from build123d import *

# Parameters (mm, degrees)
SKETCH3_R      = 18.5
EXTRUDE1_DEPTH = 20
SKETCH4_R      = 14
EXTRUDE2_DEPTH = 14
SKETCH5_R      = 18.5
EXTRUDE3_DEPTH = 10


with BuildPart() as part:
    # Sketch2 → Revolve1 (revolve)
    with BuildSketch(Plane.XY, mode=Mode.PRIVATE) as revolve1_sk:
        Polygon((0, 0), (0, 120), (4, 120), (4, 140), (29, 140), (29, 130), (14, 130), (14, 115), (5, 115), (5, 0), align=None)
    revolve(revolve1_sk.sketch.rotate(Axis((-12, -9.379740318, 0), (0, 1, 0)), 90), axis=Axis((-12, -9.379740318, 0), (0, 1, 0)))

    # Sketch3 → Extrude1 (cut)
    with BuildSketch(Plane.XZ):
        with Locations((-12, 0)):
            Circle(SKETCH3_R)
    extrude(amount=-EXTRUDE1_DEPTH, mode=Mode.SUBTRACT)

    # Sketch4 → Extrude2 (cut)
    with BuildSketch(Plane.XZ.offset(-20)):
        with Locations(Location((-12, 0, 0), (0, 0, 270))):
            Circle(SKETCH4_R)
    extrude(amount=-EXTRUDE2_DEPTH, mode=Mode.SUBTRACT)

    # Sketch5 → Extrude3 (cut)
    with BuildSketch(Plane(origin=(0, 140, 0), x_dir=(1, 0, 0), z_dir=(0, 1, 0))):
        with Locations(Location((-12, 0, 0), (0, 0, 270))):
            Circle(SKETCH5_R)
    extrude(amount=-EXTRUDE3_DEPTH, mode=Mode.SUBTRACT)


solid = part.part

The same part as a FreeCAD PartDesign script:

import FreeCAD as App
import Part
import Sketcher
from FreeCAD import Vector

doc = App.newDocument("Part")
params = doc.addObject("Spreadsheet::Sheet", "Params")
for row, (alias, value) in enumerate([
    ("sketch1_width", "5 mm"),
    ("sketch1_width2", "9 mm"),
    ("sketch1_width3", "15 mm"),
    ("sketch1_width4", "25 mm"),
    ("sketch1_height", "120 mm"),
    ("revolution_angle", "360 deg"),
    ("sketch2_diameter", "37 mm"),
    ("pocket1_length", "20 mm"),
    ("sketch3_diameter", "28 mm"),
    ("pocket2_length", "14 mm"),
    ("sketch4_diameter", "37 mm"),
    ("pocket3_length", "10 mm"),
], start=1):
    params.set(f"A{row}", alias)
    params.set(f"B{row}", "=" + value)
    params.setAlias(f"B{row}", alias)

body = doc.addObject("PartDesign::Body", "Body")

sketch1 = body.newObject("Sketcher::SketchObject", "Sketch")
sketch1.AttachmentSupport = (doc.getObject("XY_Plane"), [""])
sketch1.MapMode = "FlatFace"
sketch1.addGeometry(Part.LineSegment(Vector(0, 120, 0), Vector(0, 0, 0)), False)
sketch1.addGeometry(Part.LineSegment(Vector(0, 0, 0), Vector(5, 0, 0)), False)
sketch1.addGeometry(Part.LineSegment(Vector(5, 0, 0), Vector(5, 115, 0)), False)
sketch1.addGeometry(Part.LineSegment(Vector(5, 115, 0), Vector(14, 115, 0)), False)
sketch1.addGeometry(Part.LineSegment(Vector(14, 115, 0), Vector(14, 130, 0)), False)
sketch1.addGeometry(Part.LineSegment(Vector(14, 130, 0), Vector(29, 130, 0)), False)
sketch1.addGeometry(Part.LineSegment(Vector(29, 130, 0), Vector(29, 140, 0)), False)
sketch1.addGeometry(Part.LineSegment(Vector(29, 140, 0), Vector(4, 140, 0)), False)
sketch1.addGeometry(Part.LineSegment(Vector(4, 140, 0), Vector(4, 120, 0)), False)
sketch1.addGeometry(Part.LineSegment(Vector(4, 120, 0), Vector(0, 120, 0)), False)
sketch1.addGeometry(Part.LineSegment(Vector(-12, 0, 0), Vector(-12, 140, 0)), True)
sketch1.addConstraint(Sketcher.Constraint("Coincident", 0, 2, 1, 1))
sketch1.addConstraint(Sketcher.Constraint("Coincident", 1, 2, 2, 1))
sketch1.addConstraint(Sketcher.Constraint("Coincident", 2, 2, 3, 1))
sketch1.addConstraint(Sketcher.Constraint("Coincident", 3, 2, 4, 1))
sketch1.addConstraint(Sketcher.Constraint("Coincident", 4, 2, 5, 1))
sketch1.addConstraint(Sketcher.Constraint("Coincident", 5, 2, 6, 1))
sketch1.addConstraint(Sketcher.Constraint("Coincident", 6, 2, 7, 1))
sketch1.addConstraint(Sketcher.Constraint("Coincident", 7, 2, 8, 1))
sketch1.addConstraint(Sketcher.Constraint("Coincident", 8, 2, 9, 1))
sketch1.addConstraint(Sketcher.Constraint("Coincident", 9, 2, 0, 1))
sketch1.addConstraint(Sketcher.Constraint("Vertical", 0))
sketch1.addConstraint(Sketcher.Constraint("Horizontal", 1))
sketch1.addConstraint(Sketcher.Constraint("Vertical", 2))
sketch1.addConstraint(Sketcher.Constraint("Horizontal", 3))
sketch1.addConstraint(Sketcher.Constraint("Vertical", 4))
sketch1.addConstraint(Sketcher.Constraint("Horizontal", 5))
sketch1.addConstraint(Sketcher.Constraint("Vertical", 6))
sketch1.addConstraint(Sketcher.Constraint("Horizontal", 7))
sketch1.addConstraint(Sketcher.Constraint("Vertical", 8))
sketch1.addConstraint(Sketcher.Constraint("Horizontal", 9))
sketch1.addConstraint(Sketcher.Constraint("Vertical", 10))
sketch1.addConstraint(Sketcher.Constraint("Coincident", 0, 2, -1, 1))
sketch1.addConstraint(Sketcher.Constraint("PointOnObject", 10, 1, -1))
sketch1.addConstraint(Sketcher.Constraint("Horizontal", 7, 2, 10, 2))
sketch1.addConstraint(Sketcher.Constraint("Equal", 5, 4))
sketch1.addConstraint(Sketcher.Constraint("DistanceX", 1, 1, 1, 2, 5.0))
sketch1.addConstraint(Sketcher.Constraint("DistanceX", 3, 1, 3, 2, 9.0))
sketch1.addConstraint(Sketcher.Constraint("DistanceX", 5, 1, 5, 2, 15.0))
sketch1.addConstraint(Sketcher.Constraint("DistanceX", 7, 2, 7, 1, 25.0))
sketch1.addConstraint(Sketcher.Constraint("DistanceY", 0, 2, 0, 1, 120.0))
sketch1.addConstraint(Sketcher.Constraint("DistanceY", 2, 1, 2, 2, 115.0))
sketch1.addConstraint(Sketcher.Constraint("DistanceY", 6, 1, 6, 2, 10.0))
sketch1.addConstraint(Sketcher.Constraint("DistanceX", 10, 1, -1, 1, 12.0))
sketch1.setExpression("Constraints[25]", "Params.sketch1_width")
sketch1.setExpression("Constraints[26]", "Params.sketch1_width2")
sketch1.setExpression("Constraints[27]", "Params.sketch1_width3")
sketch1.setExpression("Constraints[28]", "Params.sketch1_width4")
sketch1.setExpression("Constraints[29]", "Params.sketch1_height")
revolution = body.newObject("PartDesign::Revolution", "Revolution")
revolution.Profile = sketch1
revolution.ReferenceAxis = (sketch1, ["Axis0"])
revolution.setExpression("Angle", "Params.revolution_angle")

sketch2 = body.newObject("Sketcher::SketchObject", "Sketch001")
sketch2.AttachmentSupport = (doc.getObject("XZ_Plane"), [""])
sketch2.MapMode = "FlatFace"
sketch2.addGeometry(Part.Circle(Vector(-12, 0, 0), Vector(0, 0, 1), 18), False)
sketch2.addConstraint(Sketcher.Constraint("PointOnObject", 0, 3, -1))
sketch2.addConstraint(Sketcher.Constraint("Diameter", 0, 37.0))
sketch2.addConstraint(Sketcher.Constraint("DistanceX", 0, 3, -1, 1, 12.0))
sketch2.setExpression("Constraints[1]", "Params.sketch2_diameter")
pocket1 = body.newObject("PartDesign::Pocket", "Pocket")
pocket1.Profile = sketch2
pocket1.setExpression("Length", "Params.pocket1_length")

sketch3 = body.newObject("Sketcher::SketchObject", "Sketch002")
sketch3.AttachmentSupport = (doc.getObject("XZ_Plane"), [""])
sketch3.MapMode = "FlatFace"
sketch3.AttachmentOffset = App.Placement(Vector(0, 0, -20), App.Rotation())
sketch3.addGeometry(Part.Circle(Vector(-12, 0, 0), Vector(0, 0, 1), 14), False)
sketch3.addConstraint(Sketcher.Constraint("PointOnObject", 0, 3, -1))
sketch3.addConstraint(Sketcher.Constraint("Diameter", 0, 28.0))
sketch3.addConstraint(Sketcher.Constraint("DistanceX", 0, 3, -1, 1, 12.0))
sketch3.setExpression("Constraints[1]", "Params.sketch3_diameter")
pocket2 = body.newObject("PartDesign::Pocket", "Pocket001")
pocket2.Profile = sketch3
pocket2.setExpression("Length", "Params.pocket2_length")

sketch4 = body.newObject("Sketcher::SketchObject", "Sketch003")
sketch4.AttachmentSupport = (doc.getObject("XZ_Plane"), [""])
sketch4.MapMode = "FlatFace"
sketch4.AttachmentOffset = App.Placement(Vector(0, 0, -140), App.Rotation())
sketch4.addGeometry(Part.Circle(Vector(-12, 0, 0), Vector(0, 0, 1), 18), False)
sketch4.addConstraint(Sketcher.Constraint("PointOnObject", 0, 3, -1))
sketch4.addConstraint(Sketcher.Constraint("Diameter", 0, 37.0))
sketch4.addConstraint(Sketcher.Constraint("DistanceX", 0, 3, -1, 1, 12.0))
sketch4.setExpression("Constraints[1]", "Params.sketch4_diameter")
pocket3 = body.newObject("PartDesign::Pocket", "Pocket002")
pocket3.Profile = sketch4
pocket3.setExpression("Length", "Params.pocket3_length")
pocket3.Reversed = True

doc.recompute()
